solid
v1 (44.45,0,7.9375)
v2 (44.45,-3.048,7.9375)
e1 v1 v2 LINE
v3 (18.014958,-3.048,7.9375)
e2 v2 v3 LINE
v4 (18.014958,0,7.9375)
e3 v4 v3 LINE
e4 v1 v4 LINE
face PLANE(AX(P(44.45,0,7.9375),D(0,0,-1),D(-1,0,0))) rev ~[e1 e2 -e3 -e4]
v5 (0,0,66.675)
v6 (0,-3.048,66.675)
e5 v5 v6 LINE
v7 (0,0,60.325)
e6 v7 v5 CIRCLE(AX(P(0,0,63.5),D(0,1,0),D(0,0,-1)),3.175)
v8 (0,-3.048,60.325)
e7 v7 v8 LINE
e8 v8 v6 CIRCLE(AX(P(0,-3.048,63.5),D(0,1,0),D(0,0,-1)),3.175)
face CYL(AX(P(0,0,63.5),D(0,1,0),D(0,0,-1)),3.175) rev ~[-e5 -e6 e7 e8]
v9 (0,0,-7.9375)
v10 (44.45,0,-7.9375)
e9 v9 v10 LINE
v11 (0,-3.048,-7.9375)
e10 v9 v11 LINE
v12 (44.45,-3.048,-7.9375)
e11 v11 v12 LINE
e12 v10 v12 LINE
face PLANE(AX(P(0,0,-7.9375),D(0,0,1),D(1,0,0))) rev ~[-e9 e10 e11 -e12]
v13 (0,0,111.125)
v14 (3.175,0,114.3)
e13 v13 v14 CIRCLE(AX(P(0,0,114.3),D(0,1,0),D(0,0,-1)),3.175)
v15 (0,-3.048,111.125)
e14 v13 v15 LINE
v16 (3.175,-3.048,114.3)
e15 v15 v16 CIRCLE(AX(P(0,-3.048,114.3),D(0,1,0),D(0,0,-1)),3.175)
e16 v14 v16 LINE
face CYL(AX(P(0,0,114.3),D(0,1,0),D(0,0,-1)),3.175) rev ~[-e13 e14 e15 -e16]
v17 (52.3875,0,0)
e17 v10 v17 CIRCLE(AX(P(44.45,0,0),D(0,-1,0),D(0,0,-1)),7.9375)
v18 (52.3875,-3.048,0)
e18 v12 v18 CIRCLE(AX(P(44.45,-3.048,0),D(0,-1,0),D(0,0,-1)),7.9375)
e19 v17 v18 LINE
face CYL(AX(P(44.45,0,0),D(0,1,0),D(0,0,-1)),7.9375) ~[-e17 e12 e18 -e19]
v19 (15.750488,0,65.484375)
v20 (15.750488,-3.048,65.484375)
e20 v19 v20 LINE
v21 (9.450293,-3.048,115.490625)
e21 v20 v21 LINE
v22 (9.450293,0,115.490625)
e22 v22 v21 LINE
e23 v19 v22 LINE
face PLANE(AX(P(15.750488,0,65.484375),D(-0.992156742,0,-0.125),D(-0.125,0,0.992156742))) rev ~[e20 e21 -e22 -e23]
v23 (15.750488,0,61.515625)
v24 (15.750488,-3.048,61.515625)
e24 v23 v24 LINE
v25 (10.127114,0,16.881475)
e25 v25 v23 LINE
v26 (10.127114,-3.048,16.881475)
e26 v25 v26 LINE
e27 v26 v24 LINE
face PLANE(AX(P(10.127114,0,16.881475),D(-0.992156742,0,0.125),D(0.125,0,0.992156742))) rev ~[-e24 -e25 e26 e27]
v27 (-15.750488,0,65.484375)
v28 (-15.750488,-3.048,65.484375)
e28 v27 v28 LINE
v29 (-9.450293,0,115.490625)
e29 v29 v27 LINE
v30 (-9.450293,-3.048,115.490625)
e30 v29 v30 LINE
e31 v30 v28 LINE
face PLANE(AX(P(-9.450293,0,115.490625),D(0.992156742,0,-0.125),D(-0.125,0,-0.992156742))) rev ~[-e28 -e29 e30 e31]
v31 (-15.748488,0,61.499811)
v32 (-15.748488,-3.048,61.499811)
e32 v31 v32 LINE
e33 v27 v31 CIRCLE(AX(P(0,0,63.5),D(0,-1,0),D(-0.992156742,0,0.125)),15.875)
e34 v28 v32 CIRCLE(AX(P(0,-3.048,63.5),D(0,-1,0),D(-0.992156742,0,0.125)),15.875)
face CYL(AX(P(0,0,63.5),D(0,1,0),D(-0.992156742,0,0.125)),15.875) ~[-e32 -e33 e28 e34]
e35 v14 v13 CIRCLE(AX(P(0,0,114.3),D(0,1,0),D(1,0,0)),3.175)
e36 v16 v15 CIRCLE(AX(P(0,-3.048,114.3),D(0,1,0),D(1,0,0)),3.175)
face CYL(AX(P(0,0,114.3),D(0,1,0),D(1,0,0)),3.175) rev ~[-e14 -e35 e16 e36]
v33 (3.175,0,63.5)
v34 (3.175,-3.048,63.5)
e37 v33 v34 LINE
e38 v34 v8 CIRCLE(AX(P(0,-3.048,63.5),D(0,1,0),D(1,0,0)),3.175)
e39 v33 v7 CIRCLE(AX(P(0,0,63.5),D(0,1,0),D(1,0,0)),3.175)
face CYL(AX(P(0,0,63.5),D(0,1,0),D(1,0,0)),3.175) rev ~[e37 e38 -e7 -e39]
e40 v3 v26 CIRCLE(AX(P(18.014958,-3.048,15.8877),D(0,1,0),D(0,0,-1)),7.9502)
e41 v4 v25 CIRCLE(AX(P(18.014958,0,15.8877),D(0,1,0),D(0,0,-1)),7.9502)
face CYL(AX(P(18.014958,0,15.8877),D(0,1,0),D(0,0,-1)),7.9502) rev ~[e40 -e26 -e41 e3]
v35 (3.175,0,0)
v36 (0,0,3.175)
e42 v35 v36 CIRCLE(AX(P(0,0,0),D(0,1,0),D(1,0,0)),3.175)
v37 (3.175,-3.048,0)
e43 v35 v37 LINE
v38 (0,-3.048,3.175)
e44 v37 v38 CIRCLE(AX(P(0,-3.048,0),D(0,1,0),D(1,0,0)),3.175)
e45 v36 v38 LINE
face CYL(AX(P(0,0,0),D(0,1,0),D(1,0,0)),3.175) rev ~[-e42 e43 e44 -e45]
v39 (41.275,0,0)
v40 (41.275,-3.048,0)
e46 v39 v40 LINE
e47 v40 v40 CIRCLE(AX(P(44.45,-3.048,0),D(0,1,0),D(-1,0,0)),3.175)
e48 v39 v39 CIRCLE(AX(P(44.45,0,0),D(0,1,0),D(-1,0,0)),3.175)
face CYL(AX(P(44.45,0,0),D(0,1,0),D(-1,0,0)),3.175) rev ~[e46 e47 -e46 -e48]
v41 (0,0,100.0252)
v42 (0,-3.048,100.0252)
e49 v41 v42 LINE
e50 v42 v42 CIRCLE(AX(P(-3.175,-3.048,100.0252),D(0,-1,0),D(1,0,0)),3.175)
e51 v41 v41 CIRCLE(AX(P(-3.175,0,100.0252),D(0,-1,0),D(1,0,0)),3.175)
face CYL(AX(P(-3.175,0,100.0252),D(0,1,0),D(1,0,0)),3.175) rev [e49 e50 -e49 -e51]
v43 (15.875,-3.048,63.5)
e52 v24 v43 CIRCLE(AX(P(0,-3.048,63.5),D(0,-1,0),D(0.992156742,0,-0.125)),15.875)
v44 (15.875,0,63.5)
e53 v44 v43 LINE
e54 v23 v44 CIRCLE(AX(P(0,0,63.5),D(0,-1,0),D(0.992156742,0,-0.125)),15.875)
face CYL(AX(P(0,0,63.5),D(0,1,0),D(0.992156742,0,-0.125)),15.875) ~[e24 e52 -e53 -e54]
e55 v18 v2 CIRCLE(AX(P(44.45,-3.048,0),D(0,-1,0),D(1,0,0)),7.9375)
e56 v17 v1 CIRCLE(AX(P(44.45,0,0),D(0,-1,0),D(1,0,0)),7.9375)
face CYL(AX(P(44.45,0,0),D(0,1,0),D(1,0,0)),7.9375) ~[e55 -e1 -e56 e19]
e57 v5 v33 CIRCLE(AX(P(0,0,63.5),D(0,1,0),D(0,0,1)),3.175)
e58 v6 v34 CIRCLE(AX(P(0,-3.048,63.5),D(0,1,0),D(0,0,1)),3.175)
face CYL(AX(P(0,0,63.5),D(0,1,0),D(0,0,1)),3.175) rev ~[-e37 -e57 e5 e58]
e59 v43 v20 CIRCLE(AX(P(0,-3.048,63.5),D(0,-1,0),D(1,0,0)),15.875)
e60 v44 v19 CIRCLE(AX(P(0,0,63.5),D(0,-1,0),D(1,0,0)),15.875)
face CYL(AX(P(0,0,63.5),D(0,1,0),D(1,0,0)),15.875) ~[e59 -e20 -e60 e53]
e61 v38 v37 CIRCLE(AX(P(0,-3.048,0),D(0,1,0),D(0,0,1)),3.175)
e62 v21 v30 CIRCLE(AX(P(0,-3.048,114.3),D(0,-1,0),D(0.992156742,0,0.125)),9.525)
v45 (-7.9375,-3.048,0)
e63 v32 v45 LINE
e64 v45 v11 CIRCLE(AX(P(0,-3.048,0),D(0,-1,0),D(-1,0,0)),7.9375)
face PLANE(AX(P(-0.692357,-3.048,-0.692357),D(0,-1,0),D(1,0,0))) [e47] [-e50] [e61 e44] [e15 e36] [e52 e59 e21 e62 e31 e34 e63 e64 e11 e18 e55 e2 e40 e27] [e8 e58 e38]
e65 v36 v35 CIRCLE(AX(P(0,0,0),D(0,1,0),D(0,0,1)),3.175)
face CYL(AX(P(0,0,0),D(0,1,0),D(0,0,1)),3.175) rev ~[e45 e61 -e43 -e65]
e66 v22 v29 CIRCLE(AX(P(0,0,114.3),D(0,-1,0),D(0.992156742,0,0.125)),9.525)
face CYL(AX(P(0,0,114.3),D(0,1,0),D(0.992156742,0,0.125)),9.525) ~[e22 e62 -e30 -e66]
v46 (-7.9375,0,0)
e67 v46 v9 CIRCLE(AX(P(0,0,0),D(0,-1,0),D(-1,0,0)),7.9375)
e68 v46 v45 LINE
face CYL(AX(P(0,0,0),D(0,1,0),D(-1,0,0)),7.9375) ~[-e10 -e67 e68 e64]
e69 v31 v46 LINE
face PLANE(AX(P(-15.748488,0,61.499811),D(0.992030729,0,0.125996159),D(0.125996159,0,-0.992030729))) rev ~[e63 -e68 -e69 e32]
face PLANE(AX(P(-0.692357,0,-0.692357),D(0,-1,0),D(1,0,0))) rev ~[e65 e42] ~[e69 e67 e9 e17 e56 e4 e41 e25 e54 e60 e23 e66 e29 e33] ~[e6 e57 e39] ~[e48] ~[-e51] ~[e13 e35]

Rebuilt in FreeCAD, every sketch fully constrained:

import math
import FreeCAD as App
import Part
import Sketcher
from FreeCAD import Vector
Q = App.Units.Quantity

doc = App.newDocument("Part")
body = doc.addObject("PartDesign::Body", "Body")

# Sketch on XZ plane
sketch1 = body.newObject("Sketcher::SketchObject", "Sketch")
sketch1.AttachmentSupport = (doc.getObject("XZ_Plane"), [""])
sketch1.MapMode = "FlatFace"
sketch1.addGeometry([
    Part.ArcOfCircle(Part.Circle(Vector(0, 63.5, 0), Vector(0, 0, 1), 15.875), math.radians(172.819244), math.radians(187.238286)),  # 0
    Part.LineSegment(Vector(-15.748488, 61.499811, 0), Vector(-7.9375, 0, 0)),  # 1
    Part.ArcOfCircle(Part.Circle(Vector(0, 0, 0), Vector(0, 0, 1), 7.9375), math.radians(180), math.radians(270)),  # 2
    Part.LineSegment(Vector(0, -7.9375, 0), Vector(44.45, -7.9375, 0)),  # 3
    Part.ArcOfCircle(Part.Circle(Vector(44.45, 0, 0), Vector(0, 0, 1), 7.9375), math.radians(-90), math.radians(0)),  # 4
    Part.ArcOfCircle(Part.Circle(Vector(44.45, 0, 0), Vector(0, 0, 1), 7.9375), math.radians(0), math.radians(90)),  # 5
    Part.LineSegment(Vector(44.45, 7.9375, 0), Vector(18.014958, 7.9375, 0)),  # 6
    Part.ArcOfCircle(Part.Circle(Vector(18.014958, 15.8877, 0), Vector(0, 0, 1), 7.9502), math.radians(172.819244), math.radians(270)),  # 7
    Part.LineSegment(Vector(10.127114, 16.881475, 0), Vector(15.750488, 61.515625, 0)),  # 8
    Part.ArcOfCircle(Part.Circle(Vector(0, 63.5, 0), Vector(0, 0, 1), 15.875), math.radians(-7.180756), math.radians(0)),  # 9
    Part.ArcOfCircle(Part.Circle(Vector(0, 63.5, 0), Vector(0, 0, 1), 15.875), math.radians(0), math.radians(7.180756)),  # 10
    Part.LineSegment(Vector(15.750488, 65.484375, 0), Vector(9.450293, 115.490625, 0)),  # 11
    Part.ArcOfCircle(Part.Circle(Vector(0, 114.3, 0), Vector(0, 0, 1), 9.525), math.radians(7.180756), math.radians(172.819244)),  # 12
    Part.LineSegment(Vector(-9.450293, 115.490625, 0), Vector(-15.750488, 65.484375, 0)),  # 13
    Part.ArcOfCircle(Part.Circle(Vector(0, 0, 0), Vector(0, 0, 1), 3.175), math.radians(90), math.radians(360)),  # 14
    Part.ArcOfCircle(Part.Circle(Vector(0, 0, 0), Vector(0, 0, 1), 3.175), math.radians(0), math.radians(90)),  # 15
    Part.Circle(Vector(44.45, 0, 0), Vector(0, 0, 1), 3.175),  # 16
    Part.ArcOfCircle(Part.Circle(Vector(0, 63.5, 0), Vector(0, 0, 1), 3.175), math.radians(90), math.radians(270)),  # 17
    Part.ArcOfCircle(Part.Circle(Vector(0, 63.5, 0), Vector(0, 0, 1), 3.175), math.radians(0), math.radians(90)),  # 18
    Part.ArcOfCircle(Part.Circle(Vector(0, 63.5, 0), Vector(0, 0, 1), 3.175), math.radians(-90), math.radians(0)),  # 19
    Part.Circle(Vector(-3.175, 100.0252, 0), Vector(0, 0, 1), 3.175),  # 20
    Part.ArcOfCircle(Part.Circle(Vector(0, 114.3, 0), Vector(0, 0, 1), 3.175), math.radians(0), math.radians(270)),  # 21
    Part.ArcOfCircle(Part.Circle(Vector(0, 114.3, 0), Vector(0, 0, 1), 3.175), math.radians(-90), math.radians(0)),  # 22
], False)
sketch1.addConstraint([
    Sketcher.Constraint("Tangent", 0, 2, 1, 1),
    Sketcher.Constraint("Coincident", 1, 2, 2, 1),
    Sketcher.Constraint("Tangent", 2, 2, 3, 1),
    Sketcher.Constraint("Tangent", 3, 2, 4, 1),
    Sketcher.Constraint("Tangent", 4, 2, 5, 1),
    Sketcher.Constraint("Tangent", 5, 2, 6, 1),
    Sketcher.Constraint("Tangent", 6, 2, 7, 2),
    Sketcher.Constraint("Tangent", 7, 1, 8, 1),
    Sketcher.Constraint("Tangent", 8, 2, 9, 1),
    Sketcher.Constraint("Tangent", 9, 2, 10, 1),
    Sketcher.Constraint("Tangent", 10, 2, 11, 1),
    Sketcher.Constraint("Tangent", 11, 2, 12, 1),
    Sketcher.Constraint("Tangent", 12, 2, 13, 1),
    Sketcher.Constraint("Tangent", 13, 2, 0, 1),
    Sketcher.Constraint("Tangent", 14, 1, 15, 2),
    Sketcher.Constraint("Coincident", 15, 1, 14, 2),
    Sketcher.Constraint("Tangent", 17, 1, 18, 2),
    Sketcher.Constraint("Tangent", 18, 1, 19, 2),
    Sketcher.Constraint("Tangent", 19, 1, 17, 2),
    Sketcher.Constraint("Tangent", 21, 1, 22, 2),
    Sketcher.Constraint("Coincident", 22, 1, 21, 2),
    Sketcher.Constraint("Horizontal", 3),
    Sketcher.Constraint("Horizontal", 6),
    Sketcher.Constraint("Coincident", 2, 3, -1, 1),
    Sketcher.Constraint("Coincident", 14, 3, -1, 1),
    Sketcher.Constraint("Coincident", 9, 3, 0, 3),
    Sketcher.Constraint("Coincident", 16, 3, 4, 3),
    Sketcher.Constraint("Coincident", 17, 3, 0, 3),
    Sketcher.Constraint("Coincident", 21, 3, 12, 3),
    Sketcher.Constraint("Equal", 2, 4),
    Sketcher.Constraint("Equal", 4, 5),
    Sketcher.Constraint("Equal", 0, 9),
    Sketcher.Constraint("Equal", 9, 10),
    Sketcher.Constraint("Equal", 15, 16),
    Sketcher.Constraint("Equal", 16, 17),
    Sketcher.Constraint("Equal", 19, 20),
    Sketcher.Constraint("Equal", 20, 21),
    Sketcher.Constraint("Symmetric", 11, 2, 12, 2, -2),
    Sketcher.Constraint("PointOnObject", 1, 2, -1),
    Sketcher.Constraint("PointOnObject", 4, 2, -1),
    Sketcher.Constraint("PointOnObject", 14, 1, -2),
    Sketcher.Constraint("PointOnObject", 15, 1, -1),
    Sketcher.Constraint("PointOnObject", 17, 1, -2),
    Sketcher.Constraint("PointOnObject", 19, 1, -2),
    Sketcher.Constraint("PointOnObject", 22, 1, -2),
    Sketcher.Constraint("Parallel", 8, 13),
    Sketcher.Constraint("Horizontal", 19, 3, 9, 2),
    Sketcher.Constraint("Horizontal", 9, 2, 18, 1),
    Sketcher.Constraint("Horizontal", 22, 3, 21, 1),
    Sketcher.Constraint("Diameter", 16, Q("0.25 in")),
    Sketcher.Constraint("Radius", 0, Q("0.625 in")),
    Sketcher.Constraint("Radius", 2, Q("0.3125 in")),
    Sketcher.Constraint("Radius", 7, Q("0.313 in")),
    Sketcher.Constraint("Radius", 12, Q("0.375 in")),
    Sketcher.Constraint("DistanceY", 0, 3, 12, 3, Q("2 in")),
    Sketcher.Constraint("DistanceX", 3, 1, 3, 2, Q("1.75 in")),
    Sketcher.Constraint("DistanceY", -1, 1, 0, 3, Q("2.5 in")),
    Sketcher.Constraint("DistanceX", 20, 3, -1, 1, Q("0.125 in")),
    Sketcher.Constraint("DistanceY", -1, 1, 20, 3, Q("3.938 in")),
])
pad1 = body.newObject("PartDesign::Pad", "Pad")
pad1.Profile = sketch1
pad1.Length = Q("0.12 in")

doc.recompute()
